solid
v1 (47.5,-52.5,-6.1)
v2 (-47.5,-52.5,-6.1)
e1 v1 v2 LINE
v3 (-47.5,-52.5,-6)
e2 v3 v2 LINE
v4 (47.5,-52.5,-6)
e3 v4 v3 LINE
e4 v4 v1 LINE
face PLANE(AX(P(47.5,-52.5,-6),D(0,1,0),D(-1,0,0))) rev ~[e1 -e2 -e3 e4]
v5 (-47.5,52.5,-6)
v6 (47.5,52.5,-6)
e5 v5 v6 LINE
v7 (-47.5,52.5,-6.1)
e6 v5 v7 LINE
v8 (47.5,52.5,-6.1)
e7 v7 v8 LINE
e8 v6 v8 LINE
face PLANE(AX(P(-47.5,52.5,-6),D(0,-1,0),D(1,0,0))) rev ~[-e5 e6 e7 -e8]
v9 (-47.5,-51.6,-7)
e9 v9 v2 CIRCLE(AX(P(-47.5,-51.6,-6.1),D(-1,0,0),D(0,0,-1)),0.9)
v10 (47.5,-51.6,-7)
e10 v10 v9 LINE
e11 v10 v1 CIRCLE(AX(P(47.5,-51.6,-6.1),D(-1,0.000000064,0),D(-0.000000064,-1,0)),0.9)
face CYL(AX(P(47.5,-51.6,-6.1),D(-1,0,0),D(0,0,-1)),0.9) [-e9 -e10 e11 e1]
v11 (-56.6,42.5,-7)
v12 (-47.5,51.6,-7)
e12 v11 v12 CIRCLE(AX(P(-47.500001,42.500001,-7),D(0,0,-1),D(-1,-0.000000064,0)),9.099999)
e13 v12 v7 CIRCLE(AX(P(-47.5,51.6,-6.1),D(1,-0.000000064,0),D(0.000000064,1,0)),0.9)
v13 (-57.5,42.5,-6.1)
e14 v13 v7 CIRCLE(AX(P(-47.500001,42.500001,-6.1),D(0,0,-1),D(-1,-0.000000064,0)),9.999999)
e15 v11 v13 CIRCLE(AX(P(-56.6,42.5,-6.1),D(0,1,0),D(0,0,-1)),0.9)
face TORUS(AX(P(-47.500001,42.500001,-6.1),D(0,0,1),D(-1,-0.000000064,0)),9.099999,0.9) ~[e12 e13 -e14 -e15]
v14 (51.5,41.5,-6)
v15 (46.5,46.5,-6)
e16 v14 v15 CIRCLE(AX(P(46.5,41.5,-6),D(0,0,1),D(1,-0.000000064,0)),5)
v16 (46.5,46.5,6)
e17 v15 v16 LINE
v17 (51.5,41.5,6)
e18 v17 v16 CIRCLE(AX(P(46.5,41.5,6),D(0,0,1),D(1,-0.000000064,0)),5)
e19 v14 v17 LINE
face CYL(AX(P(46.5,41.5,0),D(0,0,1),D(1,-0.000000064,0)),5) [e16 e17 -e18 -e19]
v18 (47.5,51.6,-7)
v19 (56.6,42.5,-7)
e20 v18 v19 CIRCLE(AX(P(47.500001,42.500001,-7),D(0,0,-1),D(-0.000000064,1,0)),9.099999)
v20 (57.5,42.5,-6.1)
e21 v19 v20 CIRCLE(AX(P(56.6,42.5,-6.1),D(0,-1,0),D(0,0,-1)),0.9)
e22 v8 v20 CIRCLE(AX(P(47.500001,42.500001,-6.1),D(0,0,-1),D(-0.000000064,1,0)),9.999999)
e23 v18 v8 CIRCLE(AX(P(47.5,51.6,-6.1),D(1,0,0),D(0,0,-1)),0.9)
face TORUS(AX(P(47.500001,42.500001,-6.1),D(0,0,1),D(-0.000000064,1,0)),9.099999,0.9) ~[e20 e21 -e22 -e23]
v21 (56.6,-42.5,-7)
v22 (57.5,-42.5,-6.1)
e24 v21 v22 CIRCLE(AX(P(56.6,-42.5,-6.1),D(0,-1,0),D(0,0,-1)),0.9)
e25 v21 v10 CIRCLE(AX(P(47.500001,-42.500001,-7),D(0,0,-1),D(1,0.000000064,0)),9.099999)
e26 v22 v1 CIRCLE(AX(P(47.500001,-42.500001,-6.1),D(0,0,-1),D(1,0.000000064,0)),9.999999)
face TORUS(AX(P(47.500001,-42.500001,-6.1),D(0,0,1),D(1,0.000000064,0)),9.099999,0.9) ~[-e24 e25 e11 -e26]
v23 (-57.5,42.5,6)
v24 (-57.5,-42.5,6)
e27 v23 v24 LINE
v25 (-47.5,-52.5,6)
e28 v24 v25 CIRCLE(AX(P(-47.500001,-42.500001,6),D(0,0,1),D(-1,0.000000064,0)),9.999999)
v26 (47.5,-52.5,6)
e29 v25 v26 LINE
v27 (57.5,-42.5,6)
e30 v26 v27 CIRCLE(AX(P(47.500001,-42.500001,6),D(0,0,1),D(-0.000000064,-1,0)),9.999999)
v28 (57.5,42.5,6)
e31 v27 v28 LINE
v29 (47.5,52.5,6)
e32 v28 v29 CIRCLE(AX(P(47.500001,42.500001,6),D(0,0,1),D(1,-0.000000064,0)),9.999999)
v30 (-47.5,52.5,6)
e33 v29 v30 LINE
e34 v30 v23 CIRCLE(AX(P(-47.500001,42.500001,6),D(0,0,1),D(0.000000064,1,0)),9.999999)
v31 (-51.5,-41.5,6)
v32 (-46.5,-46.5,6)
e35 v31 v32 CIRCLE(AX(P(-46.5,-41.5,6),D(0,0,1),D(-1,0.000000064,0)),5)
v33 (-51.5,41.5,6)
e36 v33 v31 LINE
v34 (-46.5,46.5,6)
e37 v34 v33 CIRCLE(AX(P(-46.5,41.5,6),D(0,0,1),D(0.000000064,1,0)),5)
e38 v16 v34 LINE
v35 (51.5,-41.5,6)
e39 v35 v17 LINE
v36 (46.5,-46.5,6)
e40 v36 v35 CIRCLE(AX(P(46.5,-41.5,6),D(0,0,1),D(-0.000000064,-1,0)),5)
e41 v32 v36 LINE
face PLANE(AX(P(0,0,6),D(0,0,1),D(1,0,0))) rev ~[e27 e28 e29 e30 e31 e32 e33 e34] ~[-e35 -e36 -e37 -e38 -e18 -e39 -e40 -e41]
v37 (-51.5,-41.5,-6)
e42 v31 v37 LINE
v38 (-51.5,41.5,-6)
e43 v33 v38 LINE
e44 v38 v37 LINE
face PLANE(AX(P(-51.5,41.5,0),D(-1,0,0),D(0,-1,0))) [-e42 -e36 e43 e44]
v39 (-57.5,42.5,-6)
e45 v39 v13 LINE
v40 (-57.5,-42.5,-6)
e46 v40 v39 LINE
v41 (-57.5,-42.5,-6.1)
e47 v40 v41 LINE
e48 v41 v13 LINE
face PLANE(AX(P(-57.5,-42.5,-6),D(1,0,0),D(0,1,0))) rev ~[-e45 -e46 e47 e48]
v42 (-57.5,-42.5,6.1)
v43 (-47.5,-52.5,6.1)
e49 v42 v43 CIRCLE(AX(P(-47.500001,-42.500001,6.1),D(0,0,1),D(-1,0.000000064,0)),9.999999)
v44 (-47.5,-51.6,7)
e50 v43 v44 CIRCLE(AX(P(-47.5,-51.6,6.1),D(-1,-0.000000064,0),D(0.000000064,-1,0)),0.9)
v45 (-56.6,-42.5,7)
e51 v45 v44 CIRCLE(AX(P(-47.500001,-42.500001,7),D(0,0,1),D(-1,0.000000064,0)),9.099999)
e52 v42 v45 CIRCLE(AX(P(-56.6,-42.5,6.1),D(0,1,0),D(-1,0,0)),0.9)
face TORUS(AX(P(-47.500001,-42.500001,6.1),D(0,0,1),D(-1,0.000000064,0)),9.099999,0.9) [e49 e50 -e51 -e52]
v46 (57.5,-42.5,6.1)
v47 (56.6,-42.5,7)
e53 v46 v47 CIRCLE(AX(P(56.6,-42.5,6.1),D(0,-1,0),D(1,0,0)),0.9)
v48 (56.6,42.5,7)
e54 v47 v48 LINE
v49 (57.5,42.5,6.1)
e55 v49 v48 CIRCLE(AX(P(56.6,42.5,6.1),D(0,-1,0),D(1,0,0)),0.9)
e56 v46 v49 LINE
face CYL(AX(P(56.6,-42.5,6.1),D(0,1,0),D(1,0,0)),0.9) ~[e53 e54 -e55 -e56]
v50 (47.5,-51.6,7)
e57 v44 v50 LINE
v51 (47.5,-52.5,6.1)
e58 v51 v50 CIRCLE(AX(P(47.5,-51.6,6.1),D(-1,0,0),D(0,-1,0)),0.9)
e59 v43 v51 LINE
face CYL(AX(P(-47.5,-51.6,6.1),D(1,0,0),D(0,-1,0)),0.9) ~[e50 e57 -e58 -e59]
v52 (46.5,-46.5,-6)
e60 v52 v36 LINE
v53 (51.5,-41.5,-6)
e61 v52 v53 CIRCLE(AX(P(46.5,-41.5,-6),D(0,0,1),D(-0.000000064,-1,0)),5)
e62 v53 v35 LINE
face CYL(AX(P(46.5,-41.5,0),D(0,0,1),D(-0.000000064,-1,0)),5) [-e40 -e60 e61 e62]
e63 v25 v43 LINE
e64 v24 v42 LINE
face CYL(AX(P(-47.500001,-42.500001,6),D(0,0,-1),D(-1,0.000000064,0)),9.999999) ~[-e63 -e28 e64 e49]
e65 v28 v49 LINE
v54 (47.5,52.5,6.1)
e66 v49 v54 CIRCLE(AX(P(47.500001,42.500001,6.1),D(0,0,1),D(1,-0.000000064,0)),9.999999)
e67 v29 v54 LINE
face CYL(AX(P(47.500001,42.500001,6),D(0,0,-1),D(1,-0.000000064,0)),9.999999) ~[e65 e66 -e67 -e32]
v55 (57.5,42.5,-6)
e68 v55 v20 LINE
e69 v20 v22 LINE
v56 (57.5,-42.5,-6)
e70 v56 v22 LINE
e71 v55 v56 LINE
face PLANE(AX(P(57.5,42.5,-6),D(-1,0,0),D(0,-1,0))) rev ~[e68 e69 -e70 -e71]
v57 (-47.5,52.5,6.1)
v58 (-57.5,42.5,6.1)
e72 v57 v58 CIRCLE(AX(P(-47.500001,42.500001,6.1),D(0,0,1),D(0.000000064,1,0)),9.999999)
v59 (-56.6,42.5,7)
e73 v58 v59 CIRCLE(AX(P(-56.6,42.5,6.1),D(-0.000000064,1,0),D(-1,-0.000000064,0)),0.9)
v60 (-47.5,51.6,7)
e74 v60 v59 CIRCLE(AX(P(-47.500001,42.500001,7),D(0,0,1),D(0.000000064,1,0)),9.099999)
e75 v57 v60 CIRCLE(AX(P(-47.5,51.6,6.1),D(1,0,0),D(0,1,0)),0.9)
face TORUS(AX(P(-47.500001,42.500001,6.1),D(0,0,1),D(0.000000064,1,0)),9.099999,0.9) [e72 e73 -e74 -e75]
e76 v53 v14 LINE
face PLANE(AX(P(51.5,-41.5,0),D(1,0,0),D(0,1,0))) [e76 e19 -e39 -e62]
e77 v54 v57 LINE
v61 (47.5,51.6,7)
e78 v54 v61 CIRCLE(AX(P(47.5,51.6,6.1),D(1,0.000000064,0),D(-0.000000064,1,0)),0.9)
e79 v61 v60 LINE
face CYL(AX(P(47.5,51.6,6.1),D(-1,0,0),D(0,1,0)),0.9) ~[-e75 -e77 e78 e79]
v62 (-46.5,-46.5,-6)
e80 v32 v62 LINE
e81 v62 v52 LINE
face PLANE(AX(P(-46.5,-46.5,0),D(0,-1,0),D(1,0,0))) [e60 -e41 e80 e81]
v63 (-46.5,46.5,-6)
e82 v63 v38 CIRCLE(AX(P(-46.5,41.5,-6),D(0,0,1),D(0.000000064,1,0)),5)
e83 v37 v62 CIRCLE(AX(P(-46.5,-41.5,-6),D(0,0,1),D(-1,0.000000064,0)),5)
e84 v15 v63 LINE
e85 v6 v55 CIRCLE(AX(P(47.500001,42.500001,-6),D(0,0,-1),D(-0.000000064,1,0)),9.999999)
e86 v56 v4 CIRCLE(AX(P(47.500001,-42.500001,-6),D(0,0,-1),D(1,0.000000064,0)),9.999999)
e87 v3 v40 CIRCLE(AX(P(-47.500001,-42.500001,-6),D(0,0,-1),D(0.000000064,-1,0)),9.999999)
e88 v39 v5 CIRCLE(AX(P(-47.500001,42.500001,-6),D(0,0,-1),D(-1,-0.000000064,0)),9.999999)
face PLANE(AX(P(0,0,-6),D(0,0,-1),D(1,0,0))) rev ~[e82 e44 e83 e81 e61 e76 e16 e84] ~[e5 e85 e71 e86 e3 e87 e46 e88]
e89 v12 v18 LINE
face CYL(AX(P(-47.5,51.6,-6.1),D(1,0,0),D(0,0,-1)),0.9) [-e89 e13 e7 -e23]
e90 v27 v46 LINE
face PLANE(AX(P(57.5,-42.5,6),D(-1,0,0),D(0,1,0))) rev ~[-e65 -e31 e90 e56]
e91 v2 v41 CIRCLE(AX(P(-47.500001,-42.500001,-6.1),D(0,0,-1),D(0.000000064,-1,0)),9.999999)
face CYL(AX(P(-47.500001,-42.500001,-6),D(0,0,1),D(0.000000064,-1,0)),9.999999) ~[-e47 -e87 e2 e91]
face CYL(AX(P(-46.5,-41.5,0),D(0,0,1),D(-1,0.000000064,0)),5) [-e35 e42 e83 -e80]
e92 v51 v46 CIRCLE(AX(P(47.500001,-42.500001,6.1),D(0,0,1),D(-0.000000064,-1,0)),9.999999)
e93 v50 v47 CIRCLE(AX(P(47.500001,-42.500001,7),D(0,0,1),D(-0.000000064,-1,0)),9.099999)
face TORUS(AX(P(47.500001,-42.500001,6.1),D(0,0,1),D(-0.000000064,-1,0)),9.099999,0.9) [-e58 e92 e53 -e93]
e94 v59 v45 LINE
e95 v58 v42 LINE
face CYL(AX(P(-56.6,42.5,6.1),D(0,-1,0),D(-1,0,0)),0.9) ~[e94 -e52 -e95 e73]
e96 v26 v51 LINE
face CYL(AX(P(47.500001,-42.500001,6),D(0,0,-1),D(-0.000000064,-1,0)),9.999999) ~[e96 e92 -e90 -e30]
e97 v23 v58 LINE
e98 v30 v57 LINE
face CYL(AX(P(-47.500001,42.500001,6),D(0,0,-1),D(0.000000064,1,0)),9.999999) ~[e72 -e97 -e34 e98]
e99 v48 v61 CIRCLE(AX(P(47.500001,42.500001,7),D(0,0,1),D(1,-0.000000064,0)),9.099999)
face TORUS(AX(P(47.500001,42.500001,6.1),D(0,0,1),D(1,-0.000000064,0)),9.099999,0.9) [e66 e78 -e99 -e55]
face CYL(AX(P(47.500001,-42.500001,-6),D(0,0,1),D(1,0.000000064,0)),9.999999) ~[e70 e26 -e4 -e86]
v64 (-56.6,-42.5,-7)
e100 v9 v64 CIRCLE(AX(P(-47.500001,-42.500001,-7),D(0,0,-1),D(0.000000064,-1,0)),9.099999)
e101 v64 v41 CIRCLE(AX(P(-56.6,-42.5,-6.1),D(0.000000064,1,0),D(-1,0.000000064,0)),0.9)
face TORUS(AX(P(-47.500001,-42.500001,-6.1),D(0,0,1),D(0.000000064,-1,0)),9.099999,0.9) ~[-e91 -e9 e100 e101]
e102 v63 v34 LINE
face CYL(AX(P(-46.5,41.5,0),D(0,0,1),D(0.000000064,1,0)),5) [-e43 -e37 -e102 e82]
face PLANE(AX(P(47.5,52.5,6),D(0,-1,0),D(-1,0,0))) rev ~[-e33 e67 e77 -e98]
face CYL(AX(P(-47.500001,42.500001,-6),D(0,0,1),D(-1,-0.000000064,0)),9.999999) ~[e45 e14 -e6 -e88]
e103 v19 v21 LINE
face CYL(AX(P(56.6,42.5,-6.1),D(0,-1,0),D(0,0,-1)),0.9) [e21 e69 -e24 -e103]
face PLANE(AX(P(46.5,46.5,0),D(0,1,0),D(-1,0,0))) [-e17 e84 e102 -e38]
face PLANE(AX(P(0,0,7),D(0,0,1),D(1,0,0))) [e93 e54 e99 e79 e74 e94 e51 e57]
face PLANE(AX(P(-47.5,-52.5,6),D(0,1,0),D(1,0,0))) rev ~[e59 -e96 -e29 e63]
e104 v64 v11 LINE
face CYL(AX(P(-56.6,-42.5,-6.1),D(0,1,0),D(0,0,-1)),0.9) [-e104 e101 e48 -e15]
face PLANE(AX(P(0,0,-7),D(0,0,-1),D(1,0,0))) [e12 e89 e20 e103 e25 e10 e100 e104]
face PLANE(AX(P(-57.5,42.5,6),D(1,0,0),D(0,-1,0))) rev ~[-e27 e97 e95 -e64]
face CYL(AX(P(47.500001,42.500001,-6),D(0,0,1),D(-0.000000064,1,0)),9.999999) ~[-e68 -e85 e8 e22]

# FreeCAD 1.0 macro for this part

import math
import FreeCAD as App
import Part
import Sketcher
Q = App.Units.Quantity


def edges_at(feature, points):
    """Names of the edges that pass closest to the given points."""
    edges = feature.Shape.Edges
    near = lambda p: min(range(len(edges)), key=lambda i: edges[i].distToShape(Part.Vertex(*p))[0])
    return sorted({f"Edge{near(p) + 1}" for p in points})

doc = App.newDocument("Part")
body = doc.addObject("PartDesign::Body", "Body")

# Sketch on XY plane
sketch1 = body.newObject("Sketcher::SketchObject", "Sketch")
sketch1.AttachmentSupport = (doc.getObject("XY_Plane"), [""])
sketch1.MapMode = "FlatFace"
sketch1.addGeometry([
    Part.LineSegment(App.Vector(-46.5, -46.5, 0), App.Vector(46.5, -46.5, 0)),  # 0
    Part.ArcOfCircle(Part.Circle(App.Vector(46.5, -41.5, 0), App.Vector(0, 0, 1), 5), math.radians(-90), math.radians(0)),  # 1
    Part.LineSegment(App.Vector(51.5, -41.5, 0), App.Vector(51.5, 41.5, 0)),  # 2
    Part.ArcOfCircle(Part.Circle(App.Vector(46.5, 41.5, 0), App.Vector(0, 0, 1), 5), math.radians(0), math.radians(90)),  # 3
    Part.LineSegment(App.Vector(46.5, 46.5, 0), App.Vector(-46.5, 46.5, 0)),  # 4
    Part.ArcOfCircle(Part.Circle(App.Vector(-46.5, 41.5, 0), App.Vector(0, 0, 1), 5), math.radians(90), math.radians(180)),  # 5
    Part.LineSegment(App.Vector(-51.5, 41.5, 0), App.Vector(-51.5, -41.5, 0)),  # 6
    Part.ArcOfCircle(Part.Circle(App.Vector(-46.5, -41.5, 0), App.Vector(0, 0, 1), 5), math.radians(180), math.radians(270)),  # 7
], False)
sketch1.addConstraint([
    Sketcher.Constraint("Tangent", 0, 2, 1, 1),
    Sketcher.Constraint("Tangent", 1, 2, 2, 1),
    Sketcher.Constraint("Tangent", 2, 2, 3, 1),
    Sketcher.Constraint("Tangent", 3, 2, 4, 1),
    Sketcher.Constraint("Tangent", 4, 2, 5, 1),
    Sketcher.Constraint("Tangent", 5, 2, 6, 1),
    Sketcher.Constraint("Tangent", 6, 2, 7, 1),
    Sketcher.Constraint("Tangent", 7, 2, 0, 1),
    Sketcher.Constraint("Horizontal", 0),
    Sketcher.Constraint("Vertical", 2),
    Sketcher.Constraint("Horizontal", 4),
    Sketcher.Constraint("Vertical", 6),
    Sketcher.Constraint("Equal", 1, 3),
    Sketcher.Constraint("Equal", 3, 5),
    Sketcher.Constraint("Equal", 5, 7),
    Sketcher.Constraint("Symmetric", 1, 3, 5, 3, -1, 1),
    Sketcher.Constraint("Radius", 1, Q("5 mm")),
    Sketcher.Constraint("DistanceX", 0, 1, 0, 2, Q("93 mm")),
    Sketcher.Constraint("DistanceY", 2, 1, 2, 2, Q("83 mm")),
])
pad1 = body.newObject("PartDesign::Pad", "Pad")
pad1.Profile = sketch1
pad1.Length = 12
pad1.Midplane = True

# Sketch on XY plane
sketch2 = body.newObject("Sketcher::SketchObject", "Sketch001")
sketch2.AttachmentSupport = (doc.getObject("XY_Plane"), [""])
sketch2.MapMode = "FlatFace"
sketch2.AttachmentOffset = App.Placement(App.Vector(0, 0, 6), App.Rotation())
sketch2.addGeometry([
    Part.LineSegment(App.Vector(-48, -52, 0), App.Vector(48, -52, 0)),  # 0
    Part.ArcOfCircle(Part.Circle(App.Vector(48, -43, 0), App.Vector(0, 0, 1), 10), math.radians(-90), math.radians(0)),  # 1
    Part.LineSegment(App.Vector(58, -42, 0), App.Vector(58, 42, 0)),  # 2
    Part.ArcOfCircle(Part.Circle(App.Vector(48, 43, 0), App.Vector(0, 0, 1), 10), math.radians(0), math.radians(90)),  # 3
    Part.LineSegment(App.Vector(48, 52, 0), App.Vector(-48, 52, 0)),  # 4
    Part.ArcOfCircle(Part.Circle(App.Vector(-48, 43, 0), App.Vector(0, 0, 1), 10), math.radians(90), math.radians(180)),  # 5
    Part.LineSegment(App.Vector(-58, 42, 0), App.Vector(-58, -42, 0)),  # 6
    Part.ArcOfCircle(Part.Circle(App.Vector(-48, -43, 0), App.Vector(0, 0, 1), 10), math.radians(180), math.radians(270)),  # 7
], False)
sketch2.addConstraint([
    Sketcher.Constraint("Tangent", 0, 2, 1, 1),
    Sketcher.Constraint("Tangent", 1, 2, 2, 1),
    Sketcher.Constraint("Tangent", 2, 2, 3, 1),
    Sketcher.Constraint("Tangent", 3, 2, 4, 1),
    Sketcher.Constraint("Tangent", 4, 2, 5, 1),
    Sketcher.Constraint("Tangent", 5, 2, 6, 1),
    Sketcher.Constraint("Tangent", 6, 2, 7, 1),
    Sketcher.Constraint("Tangent", 7, 2, 0, 1),
    Sketcher.Constraint("Horizontal", 0),
    Sketcher.Constraint("Vertical", 2),
    Sketcher.Constraint("Horizontal", 4),
    Sketcher.Constraint("Vertical", 6),
    Sketcher.Constraint("Equal", 1, 3),
    Sketcher.Constraint("Equal", 3, 5),
    Sketcher.Constraint("Equal", 5, 7),
    Sketcher.Constraint("Symmetric", 1, 3, 5, 3, -1, 1),
    Sketcher.Constraint("Radius", 1, Q("9.999999 mm")),
    Sketcher.Constraint("DistanceX", 0, 1, 0, 2, Q("95 mm")),
    Sketcher.Constraint("DistanceY", 2, 1, 2, 2, Q("85 mm")),
])
pad2 = body.newObject("PartDesign::Pad", "Pad001")
pad2.Profile = sketch2
pad2.Length = 1

# Sketch on XY plane
sketch3 = body.newObject("Sketcher::SketchObject", "Sketch002")
sketch3.AttachmentSupport = (doc.getObject("XY_Plane"), [""])
sketch3.MapMode = "FlatFace"
sketch3.AttachmentOffset = App.Placement(App.Vector(0, 0, -6), App.Rotation())
sketch3.addGeometry([
    Part.LineSegment(App.Vector(-48, 52, 0), App.Vector(48, 52, 0)),  # 0
    Part.ArcOfCircle(Part.Circle(App.Vector(48, 43, 0), App.Vector(0, 0, 1), 10), math.radians(0), math.radians(90)),  # 1
    Part.LineSegment(App.Vector(58, 42, 0), App.Vector(58, -42, 0)),  # 2
    Part.ArcOfCircle(Part.Circle(App.Vector(48, -43, 0), App.Vector(0, 0, 1), 10), math.radians(-90), math.radians(0)),  # 3
    Part.LineSegment(App.Vector(48, -52, 0), App.Vector(-48, -52, 0)),  # 4
    Part.ArcOfCircle(Part.Circle(App.Vector(-48, -43, 0), App.Vector(0, 0, 1), 10), math.radians(180), math.radians(270)),  # 5
    Part.LineSegment(App.Vector(-58, -42, 0), App.Vector(-58, 42, 0)),  # 6
    Part.ArcOfCircle(Part.Circle(App.Vector(-48, 43, 0), App.Vector(0, 0, 1), 10), math.radians(90), math.radians(180)),  # 7
], False)
sketch3.addConstraint([
    Sketcher.Constraint("Tangent", 0, 2, 1, 2),
    Sketcher.Constraint("Tangent", 1, 1, 2, 1),
    Sketcher.Constraint("Tangent", 2, 2, 3, 2),
    Sketcher.Constraint("Tangent", 3, 1, 4, 1),
    Sketcher.Constraint("Tangent", 4, 2, 5, 2),
    Sketcher.Constraint("Tangent", 5, 1, 6, 1),
    Sketcher.Constraint("Tangent", 6, 2, 7, 2),
    Sketcher.Constraint("Tangent", 7, 1, 0, 1),
    Sketcher.Constraint("Horizontal", 0),
    Sketcher.Constraint("Vertical", 2),
    Sketcher.Constraint("Horizontal", 4),
    Sketcher.Constraint("Vertical", 6),
    Sketcher.Constraint("Equal", 1, 3),
    Sketcher.Constraint("Equal", 3, 5),
    Sketcher.Constraint("Equal", 5, 7),
    Sketcher.Constraint("Symmetric", 1, 3, 5, 3, -1, 1),
    Sketcher.Constraint("Radius", 1, Q("9.999999 mm")),
    Sketcher.Constraint("DistanceX", 0, 1, 0, 2, Q("95 mm")),
    Sketcher.Constraint("DistanceY", 2, 2, 2, 1, Q("85 mm")),
])
pad3 = body.newObject("PartDesign::Pad", "Pad002")
pad3.Profile = sketch3
pad3.Length = 1
pad3.Reversed = True
doc.recompute()

fillet = body.newObject("PartDesign::Fillet", "Fillet")
fillet.Base = (pad3, edges_at(pad3, [(57.5, 0, -7), (57.5, 0, 7)]))
fillet.Radius = 0.9

doc.recompute()
